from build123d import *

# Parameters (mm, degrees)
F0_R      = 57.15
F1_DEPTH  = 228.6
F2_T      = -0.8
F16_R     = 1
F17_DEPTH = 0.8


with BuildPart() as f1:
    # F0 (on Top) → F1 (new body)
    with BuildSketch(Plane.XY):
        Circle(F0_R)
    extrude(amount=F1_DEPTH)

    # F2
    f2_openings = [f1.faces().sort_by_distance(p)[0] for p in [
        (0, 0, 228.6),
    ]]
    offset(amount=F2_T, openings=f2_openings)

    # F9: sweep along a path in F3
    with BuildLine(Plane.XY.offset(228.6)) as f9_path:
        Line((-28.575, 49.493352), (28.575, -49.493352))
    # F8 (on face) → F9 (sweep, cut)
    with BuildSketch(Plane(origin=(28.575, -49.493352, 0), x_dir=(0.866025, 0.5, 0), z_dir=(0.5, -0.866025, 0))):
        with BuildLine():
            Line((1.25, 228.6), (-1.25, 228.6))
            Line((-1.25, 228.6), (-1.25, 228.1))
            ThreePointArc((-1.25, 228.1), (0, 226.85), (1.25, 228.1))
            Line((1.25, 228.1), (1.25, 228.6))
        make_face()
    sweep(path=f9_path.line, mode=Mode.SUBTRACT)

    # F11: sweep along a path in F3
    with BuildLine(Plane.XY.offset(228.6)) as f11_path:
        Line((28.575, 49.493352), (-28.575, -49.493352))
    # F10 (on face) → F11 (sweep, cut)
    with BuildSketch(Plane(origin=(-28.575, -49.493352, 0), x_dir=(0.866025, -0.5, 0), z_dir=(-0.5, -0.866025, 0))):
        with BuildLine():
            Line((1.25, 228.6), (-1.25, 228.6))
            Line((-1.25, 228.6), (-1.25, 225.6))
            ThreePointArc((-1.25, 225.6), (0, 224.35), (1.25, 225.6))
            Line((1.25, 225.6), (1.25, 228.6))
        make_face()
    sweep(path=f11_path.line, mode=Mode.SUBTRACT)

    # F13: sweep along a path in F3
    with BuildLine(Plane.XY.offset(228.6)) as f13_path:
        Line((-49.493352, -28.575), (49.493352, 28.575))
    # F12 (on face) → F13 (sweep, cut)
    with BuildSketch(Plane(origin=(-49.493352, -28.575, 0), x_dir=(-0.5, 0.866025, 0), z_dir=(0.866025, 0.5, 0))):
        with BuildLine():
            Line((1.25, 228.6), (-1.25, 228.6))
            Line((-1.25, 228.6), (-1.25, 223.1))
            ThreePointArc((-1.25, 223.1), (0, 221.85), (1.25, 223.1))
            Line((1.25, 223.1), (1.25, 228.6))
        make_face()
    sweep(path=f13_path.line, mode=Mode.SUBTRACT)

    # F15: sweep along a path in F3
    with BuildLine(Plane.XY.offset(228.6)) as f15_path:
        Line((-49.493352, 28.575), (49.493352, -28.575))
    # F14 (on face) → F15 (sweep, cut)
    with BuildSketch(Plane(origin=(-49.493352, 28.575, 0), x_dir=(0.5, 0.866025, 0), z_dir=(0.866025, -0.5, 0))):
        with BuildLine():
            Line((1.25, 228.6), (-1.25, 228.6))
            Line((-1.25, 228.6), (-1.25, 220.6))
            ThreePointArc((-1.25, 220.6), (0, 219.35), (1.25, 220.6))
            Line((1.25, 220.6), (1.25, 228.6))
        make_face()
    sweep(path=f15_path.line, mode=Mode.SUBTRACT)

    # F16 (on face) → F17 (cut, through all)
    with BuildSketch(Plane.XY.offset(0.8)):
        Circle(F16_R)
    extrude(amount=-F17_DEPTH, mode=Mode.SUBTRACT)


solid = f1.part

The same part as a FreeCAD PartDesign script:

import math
import FreeCAD as App
import Part
import Sketcher

V = App.Vector
Q = App.Units.Quantity


def faces_at(feature, points):
    """Names of the faces that lie closest to the given points."""
    faces = feature.Shape.Faces
    near = lambda p: min(range(len(faces)), key=lambda i: faces[i].distToShape(Part.Vertex(*p))[0])
    return sorted({f"Face{near(p) + 1}" for p in points})

doc = App.newDocument("Part")
body = doc.addObject("PartDesign::Body", "Body")

sketch1 = doc.addObject("Sketcher::SketchObject", "Sketch")
body.addObject(sketch1)
sketch1.AttachmentSupport = (doc.XY_Plane, [""])
sketch1.MapMode = "FlatFace"
sketch1.addGeometry(Part.Circle(V(0, 0, 0), V(0, 0, 1), 57), False)
sketch1.addConstraint([
    Sketcher.Constraint("Coincident", 0, 3, -1, 1),
    Sketcher.Constraint("Diameter", 0, Q("114.3 mm")),
])
pad1 = doc.addObject("PartDesign::Pad", "Pad")
body.addObject(pad1)
pad1.Profile = sketch1
pad1.Length = 228.6
doc.recompute()

thickness = doc.addObject("PartDesign::Thickness", "Thickness")
body.addObject(thickness)
thickness.Base = (pad1, faces_at(pad1, [(0, 0, 228.6)]))
thickness.Value = 0.8
thickness.Reversed = True
thickness.Join = "Arc"

sketch2 = doc.addObject("Sketcher::SketchObject", "Sketch001")
body.addObject(sketch2)
sketch2.Placement = App.Placement(V(28.575, -49.493352, 0), App.Rotation(V(0.866025303, 0.500000175, 0), V(0, 0, 1), V(0.500000175, -0.866025303, 0), "ZXY"))
sketch2.addGeometry([
    Part.LineSegment(V(1.3, 228.6, 0), V(-1.3, 228.6, 0)),
    Part.LineSegment(V(-1.3, 228.6, 0), V(-1.3, 228.1, 0)),
    Part.ArcOfCircle(Part.Circle(V(0, 228.1, 0), V(0, 0, 1), 1.2), math.radians(180), math.radians(360)),
    Part.LineSegment(V(1.3, 228.1, 0), V(1.3, 228.6, 0)),
], False)
sketch2.addConstraint([
    Sketcher.Constraint("Coincident", 0, 2, 1, 1),
    Sketcher.Constraint("Tangent", 1, 2, 2, 1),
    Sketcher.Constraint("Tangent", 2, 2, 3, 1),
    Sketcher.Constraint("Coincident", 3, 2, 0, 1),
    Sketcher.Constraint("Horizontal", 0),
    Sketcher.Constraint("Vertical", 1),
    Sketcher.Constraint("Vertical", 3),
    Sketcher.Constraint("PointOnObject", 2, 3, -2),
    Sketcher.Constraint("Radius", 2, Q("1.25 mm")),
    Sketcher.Constraint("DistanceY", 1, 2, 1, 1, Q("0.5 mm")),
    Sketcher.Constraint("DistanceY", -1, 1, 2, 3, Q("228.1 mm")),
])

sketch3 = doc.addObject("Sketcher::SketchObject", "Sketch002")
body.addObject(sketch3)
sketch3.Placement = App.Placement(V(0, 0, 0), App.Rotation(V(0.499999999, -0.866025405, 0), V(0, 0, 1.000000001), V(-0.866025405, -0.499999999, 0), "ZXY"))
sketch3.addGeometry(Part.LineSegment(V(-57, 229, 0), V(57, 229, 0)), False)
sketch3.addConstraint([
    Sketcher.Constraint("Horizontal", 0),
    Sketcher.Constraint("DistanceX", 0, 1, 0, 2, Q("114.3 mm")),
    Sketcher.Constraint("DistanceY", -1, 1, 0, 1, Q("228.600001 mm")),
    Sketcher.Constraint("DistanceX", 0, 1, -1, 1, Q("57.15 mm")),
])
doc.recompute()

subtractivepipe = doc.addObject("PartDesign::SubtractivePipe", "SubtractivePipe")
body.addObject(subtractivepipe)
subtractivepipe.Profile = sketch2
subtractivepipe.Spine = (sketch3, ["Edge1"])

sketch4 = doc.addObject("Sketcher::SketchObject", "Sketch003")
body.addObject(sketch4)
sketch4.Placement = App.Placement(V(-28.575, -49.493352, 0), App.Rotation(V(0.866025303, -0.500000175, 0), V(0, 0, 1), V(-0.500000175, -0.866025303, 0), "ZXY"))
sketch4.addGeometry([
    Part.LineSegment(V(1.3, 228.6, 0), V(-1.3, 228.6, 0)),
    Part.LineSegment(V(-1.3, 228.6, 0), V(-1.3, 225.6, 0)),
    Part.ArcOfCircle(Part.Circle(V(0, 225.6, 0), V(0, 0, 1), 1.2), math.radians(180), math.radians(360)),
    Part.LineSegment(V(1.3, 225.6, 0), V(1.3, 228.6, 0)),
], False)
sketch4.addConstraint([
    Sketcher.Constraint("Coincident", 0, 2, 1, 1),
    Sketcher.Constraint("Tangent", 1, 2, 2, 1),
    Sketcher.Constraint("Tangent", 2, 2, 3, 1),
    Sketcher.Constraint("Coincident", 3, 2, 0, 1),
    Sketcher.Constraint("Horizontal", 0),
    Sketcher.Constraint("Vertical", 1),
    Sketcher.Constraint("Vertical", 3),
    Sketcher.Constraint("PointOnObject", 2, 3, -2),
    Sketcher.Constraint("DistanceY", 1, 2, 1, 1, Q("3 mm")),
    Sketcher.Constraint("Radius", 2, Q("1.25 mm")),
    Sketcher.Constraint("DistanceY", -1, 1, 2, 3, Q("225.6 mm")),
])

sketch5 = doc.addObject("Sketcher::SketchObject", "Sketch004")
body.addObject(sketch5)
sketch5.Placement = App.Placement(V(0, 0, 0), App.Rotation(V(-0.499999999, -0.866025405, 0), V(0, 0, 1.000000001), V(-0.866025405, 0.499999999, 0), "ZXY"))
sketch5.addGeometry(Part.LineSegment(V(-57, 229, 0), V(57, 229, 0)), False)
sketch5.addConstraint([
    Sketcher.Constraint("Horizontal", 0),
    Sketcher.Constraint("DistanceX", 0, 1, 0, 2, Q("114.3 mm")),
    Sketcher.Constraint("DistanceY", -1, 1, 0, 1, Q("228.600001 mm")),
    Sketcher.Constraint("DistanceX", 0, 1, -1, 1, Q("57.15 mm")),
])
doc.recompute()

subtractivepipe2 = doc.addObject("PartDesign::SubtractivePipe", "SubtractivePipe001")
body.addObject(subtractivepipe2)
subtractivepipe2.Profile = sketch4
subtractivepipe2.Spine = (sketch5, ["Edge1"])

sketch6 = doc.addObject("Sketcher::SketchObject", "Sketch005")
body.addObject(sketch6)
sketch6.Placement = App.Placement(V(-49.493352, -28.575, 0), App.Rotation(V(-0.500000175, 0.866025303, 0), V(0, 0, 1), V(0.866025303, 0.500000175, 0), "ZXY"))
sketch6.addGeometry([
    Part.LineSegment(V(1.3, 228.6, 0), V(-1.3, 228.6, 0)),
    Part.LineSegment(V(-1.3, 228.6, 0), V(-1.3, 223.1, 0)),
    Part.ArcOfCircle(Part.Circle(V(0, 223.1, 0), V(0, 0, 1), 1.2), math.radians(180), math.radians(360)),
    Part.LineSegment(V(1.3, 223.1, 0), V(1.3, 228.6, 0)),
], False)
sketch6.addConstraint([
    Sketcher.Constraint("Coincident", 0, 2, 1, 1),
    Sketcher.Constraint("Tangent", 1, 2, 2, 1),
    Sketcher.Constraint("Tangent", 2, 2, 3, 1),
    Sketcher.Constraint("Coincident", 3, 2, 0, 1),
    Sketcher.Constraint("Horizontal", 0),
    Sketcher.Constraint("Vertical", 1),
    Sketcher.Constraint("Vertical", 3),
    Sketcher.Constraint("PointOnObject", 2, 3, -2),
    Sketcher.Constraint("Radius", 2, Q("1.25 mm")),
    Sketcher.Constraint("DistanceY", 1, 2, 1, 1, Q("5.5 mm")),
    Sketcher.Constraint("DistanceY", -1, 1, 2, 3, Q("223.1 mm")),
])

sketch7 = doc.addObject("Sketcher::SketchObject", "Sketch006")
body.addObject(sketch7)
sketch7.Placement = App.Placement(V(0, 0, 0), App.Rotation(V(0.866025405, 0.499999999, 0), V(0, 0, 1.000000001), V(0.499999999, -0.866025405, 0), "ZXY"))
sketch7.addGeometry(Part.LineSegment(V(-57, 229, 0), V(57, 229, 0)), False)
sketch7.addConstraint([
    Sketcher.Constraint("Horizontal", 0),
    Sketcher.Constraint("DistanceX", 0, 1, 0, 2, Q("114.3 mm")),
    Sketcher.Constraint("DistanceY", -1, 1, 0, 1, Q("228.600001 mm")),
    Sketcher.Constraint("DistanceX", 0, 1, -1, 1, Q("57.15 mm")),
])
doc.recompute()

subtractivepipe3 = doc.addObject("PartDesign::SubtractivePipe", "SubtractivePipe002")
body.addObject(subtractivepipe3)
subtractivepipe3.Profile = sketch6
subtractivepipe3.Spine = (sketch7, ["Edge1"])

sketch8 = doc.addObject("Sketcher::SketchObject", "Sketch007")
body.addObject(sketch8)
sketch8.Placement = App.Placement(V(-49.493352, 28.575, 0), App.Rotation(V(0.500000175, 0.866025303, 0), V(0, 0, 1), V(0.866025303, -0.500000175, 0), "ZXY"))
sketch8.addGeometry([
    Part.LineSegment(V(1.3, 228.6, 0), V(-1.3, 228.6, 0)),
    Part.LineSegment(V(-1.3, 228.6, 0), V(-1.3, 220.6, 0)),
    Part.ArcOfCircle(Part.Circle(V(0, 220.6, 0), V(0, 0, 1), 1.2), math.radians(180), math.radians(360)),
    Part.LineSegment(V(1.3, 220.6, 0), V(1.3, 228.6, 0)),
], False)
sketch8.addConstraint([
    Sketcher.Constraint("Coincident", 0, 2, 1, 1),
    Sketcher.Constraint("Tangent", 1, 2, 2, 1),
    Sketcher.Constraint("Tangent", 2, 2, 3, 1),
    Sketcher.Constraint("Coincident", 3, 2, 0, 1),
    Sketcher.Constraint("Horizontal", 0),
    Sketcher.Constraint("Vertical", 1),
    Sketcher.Constraint("Vertical", 3),
    Sketcher.Constraint("PointOnObject", 2, 3, -2),
    Sketcher.Constraint("DistanceY", 1, 2, 1, 1, Q("8 mm")),
    Sketcher.Constraint("Radius", 2, Q("1.25 mm")),
    Sketcher.Constraint("DistanceY", -1, 1, 2, 3, Q("220.6 mm")),
])

sketch9 = doc.addObject("Sketcher::SketchObject", "Sketch008")
body.addObject(sketch9)
sketch9.Placement = App.Placement(V(0, 0, 0), App.Rotation(V(0.866025405, -0.499999999, 0), V(0, 0, 1.000000001), V(-0.499999999, -0.866025405, 0), "ZXY"))
sketch9.addGeometry(Part.LineSegment(V(-57, 229, 0), V(57, 229, 0)), False)
sketch9.addConstraint([
    Sketcher.Constraint("Horizontal", 0),
    Sketcher.Constraint("DistanceX", 0, 1, 0, 2, Q("114.3 mm")),
    Sketcher.Constraint("DistanceY", -1, 1, 0, 1, Q("228.600001 mm")),
    Sketcher.Constraint("DistanceX", 0, 1, -1, 1, Q("57.15 mm")),
])
doc.recompute()

subtractivepipe4 = doc.addObject("PartDesign::SubtractivePipe", "SubtractivePipe003")
body.addObject(subtractivepipe4)
subtractivepipe4.Profile = sketch8
subtractivepipe4.Spine = (sketch9, ["Edge1"])

sketch10 = doc.addObject("Sketcher::SketchObject", "Sketch009")
body.addObject(sketch10)
sketch10.AttachmentSupport = (doc.XY_Plane, [""])
sketch10.MapMode = "FlatFace"
sketch10.AttachmentOffset = App.Placement(V(0, 0, 0.8), App.Rotation())
sketch10.addGeometry(Part.Circle(V(0, 0, 0), V(0, 0, 1), 1), False)
sketch10.addConstraint([
    Sketcher.Constraint("Coincident", 0, 3, -1, 1),
    Sketcher.Constraint("Diameter", 0, Q("2 mm")),
])
pocket1 = doc.addObject("PartDesign::Pocket", "Pocket")
body.addObject(pocket1)
pocket1.Profile = sketch10
pocket1.Type = "ThroughAll"

doc.recompute()
